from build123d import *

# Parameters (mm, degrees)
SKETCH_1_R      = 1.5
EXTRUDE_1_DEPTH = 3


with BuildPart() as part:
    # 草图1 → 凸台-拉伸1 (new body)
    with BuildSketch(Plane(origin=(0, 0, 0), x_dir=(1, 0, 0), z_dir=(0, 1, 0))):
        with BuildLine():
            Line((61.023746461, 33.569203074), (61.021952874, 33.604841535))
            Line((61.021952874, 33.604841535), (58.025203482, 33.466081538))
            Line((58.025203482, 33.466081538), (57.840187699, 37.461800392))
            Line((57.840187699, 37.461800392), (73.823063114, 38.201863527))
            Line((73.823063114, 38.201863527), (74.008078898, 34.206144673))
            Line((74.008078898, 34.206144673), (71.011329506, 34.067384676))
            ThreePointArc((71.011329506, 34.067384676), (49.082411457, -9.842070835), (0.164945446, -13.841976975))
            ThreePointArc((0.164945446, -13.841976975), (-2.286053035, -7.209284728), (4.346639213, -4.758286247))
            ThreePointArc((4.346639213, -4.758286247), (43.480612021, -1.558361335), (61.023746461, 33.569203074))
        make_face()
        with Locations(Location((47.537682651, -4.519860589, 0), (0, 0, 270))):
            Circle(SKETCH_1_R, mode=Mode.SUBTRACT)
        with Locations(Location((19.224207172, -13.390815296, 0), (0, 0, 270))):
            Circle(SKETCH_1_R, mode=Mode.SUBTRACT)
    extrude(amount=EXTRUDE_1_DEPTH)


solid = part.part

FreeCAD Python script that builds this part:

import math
import FreeCAD as App
import Part
import Sketcher

doc = App.newDocument("Part")
body = doc.addObject("PartDesign::Body", "Body")

sketch1 = doc.addObject("Sketcher::SketchObject", "Sketch")
body.addObject(sketch1)
sketch1.AttachmentSupport = (doc.XZ_Plane, [""])
sketch1.MapMode = "FlatFace"
sketch1.addGeometry([
    Part.LineSegment(App.Vector(61.021953, -33.604842, 0), App.Vector(61.023746, -33.569203, 0)),
    Part.ArcOfCircle(Part.Circle(App.Vector(21.073414, -31.576477, 0), App.Vector(0, 0, 1), 40), math.radians(-2.855552), math.radians(114.719066)),
    Part.ArcOfCircle(Part.Circle(App.Vector(2.255792, 9.300132, 0), App.Vector(0, 0, 1), 5), math.radians(114.719066), math.radians(294.719066)),
    Part.ArcOfCircle(Part.Circle(App.Vector(21.073414, -31.576477, 0), App.Vector(0, 0, 1), 50), math.radians(-2.855552), math.radians(114.719066)),
    Part.LineSegment(App.Vector(71.01133, -34.067385, 0), App.Vector(74.008079, -34.206145, 0)),
    Part.LineSegment(App.Vector(74.008079, -34.206145, 0), App.Vector(73.823063, -38.201864, 0)),
    Part.LineSegment(App.Vector(73.823063, -38.201864, 0), App.Vector(57.840188, -37.4618, 0)),
    Part.LineSegment(App.Vector(57.840188, -37.4618, 0), App.Vector(58.025203, -33.466082, 0)),
    Part.LineSegment(App.Vector(58.025203, -33.466082, 0), App.Vector(61.021953, -33.604842, 0)),
    Part.Circle(App.Vector(19.224207, 13.390815, 0), App.Vector(0, 0, 1), 1.5),
    Part.Circle(App.Vector(47.537683, 4.519861, 0), App.Vector(0, 0, 1), 1.5),
], False)
sketch1.addConstraint([
    Sketcher.Constraint("Coincident", 0, 2, 1, 1),
    Sketcher.Constraint("Coincident", 1, 2, 2, 2),
    Sketcher.Constraint("Coincident", 2, 1, 3, 2),
    Sketcher.Constraint("Coincident", 3, 1, 4, 1),
    Sketcher.Constraint("Coincident", 4, 2, 5, 1),
    Sketcher.Constraint("Coincident", 5, 2, 6, 1),
    Sketcher.Constraint("Coincident", 6, 2, 7, 1),
    Sketcher.Constraint("Coincident", 7, 2, 8, 1),
    Sketcher.Constraint("Coincident", 8, 2, 0, 1),
    Sketcher.Constraint("Coincident", 3, 3, 1, 3),
    Sketcher.Constraint("Diameter", 9, 3.0),
    Sketcher.Constraint("Diameter", 10, 3.0),
    Sketcher.Constraint("Radius", 1, 40.0),
    Sketcher.Constraint("Radius", 2, 5.0),
    Sketcher.Constraint("Distance", 5, 4.0),
    Sketcher.Constraint("Distance", 6, 16.0),
    Sketcher.Constraint("Distance", 7, 4.0),
    Sketcher.Constraint("DistanceY", 6, 2, -1, 1, 37.4618),
    Sketcher.Constraint("DistanceY", 3, 1, 9, 3, 47.4582),
    Sketcher.Constraint("Distance", 4, 2.99996),
    Sketcher.Constraint("Distance", 8, 2.99996),
    Sketcher.Constraint("DistanceY", -1, 1, 2, 3, 9.300132),
    Sketcher.Constraint("DistanceY", -1, 1, 10, 3, 4.519861),
    Sketcher.Constraint("DistanceX", -1, 1, 1, 2, 4.346639),
    Sketcher.Constraint("DistanceX", -1, 1, 3, 1, 71.01133),
    Sketcher.Constraint("DistanceX", -1, 1, 4, 2, 74.008079),
    Sketcher.Constraint("DistanceY", 7, 2, -1, 1, 33.466082),
    Sketcher.Constraint("DistanceY", 8, 2, -1, 1, 33.604842),
    Sketcher.Constraint("DistanceX", 2, 3, 1, 3, 18.817622),
    Sketcher.Constraint("DistanceY", 3, 3, 9, 3, 44.967292),
    Sketcher.Constraint("DistanceX", 3, 3, 10, 3, 26.464268),
    Sketcher.Constraint("DistanceX", 9, 3, 0, 2, 41.799539),
    Sketcher.Constraint("DistanceY", 0, 2, 9, 3, 46.960018),
    Sketcher.Constraint("DistanceY", 1, 2, 2, 1, 9.083691),
    Sketcher.Constraint("DistanceY", 5, 2, 4, 2, 3.995719),
])
pad1 = doc.addObject("PartDesign::Pad", "Pad")
body.addObject(pad1)
pad1.Profile = sketch1
pad1.Length = 3
pad1.Reversed = True

doc.recompute()
